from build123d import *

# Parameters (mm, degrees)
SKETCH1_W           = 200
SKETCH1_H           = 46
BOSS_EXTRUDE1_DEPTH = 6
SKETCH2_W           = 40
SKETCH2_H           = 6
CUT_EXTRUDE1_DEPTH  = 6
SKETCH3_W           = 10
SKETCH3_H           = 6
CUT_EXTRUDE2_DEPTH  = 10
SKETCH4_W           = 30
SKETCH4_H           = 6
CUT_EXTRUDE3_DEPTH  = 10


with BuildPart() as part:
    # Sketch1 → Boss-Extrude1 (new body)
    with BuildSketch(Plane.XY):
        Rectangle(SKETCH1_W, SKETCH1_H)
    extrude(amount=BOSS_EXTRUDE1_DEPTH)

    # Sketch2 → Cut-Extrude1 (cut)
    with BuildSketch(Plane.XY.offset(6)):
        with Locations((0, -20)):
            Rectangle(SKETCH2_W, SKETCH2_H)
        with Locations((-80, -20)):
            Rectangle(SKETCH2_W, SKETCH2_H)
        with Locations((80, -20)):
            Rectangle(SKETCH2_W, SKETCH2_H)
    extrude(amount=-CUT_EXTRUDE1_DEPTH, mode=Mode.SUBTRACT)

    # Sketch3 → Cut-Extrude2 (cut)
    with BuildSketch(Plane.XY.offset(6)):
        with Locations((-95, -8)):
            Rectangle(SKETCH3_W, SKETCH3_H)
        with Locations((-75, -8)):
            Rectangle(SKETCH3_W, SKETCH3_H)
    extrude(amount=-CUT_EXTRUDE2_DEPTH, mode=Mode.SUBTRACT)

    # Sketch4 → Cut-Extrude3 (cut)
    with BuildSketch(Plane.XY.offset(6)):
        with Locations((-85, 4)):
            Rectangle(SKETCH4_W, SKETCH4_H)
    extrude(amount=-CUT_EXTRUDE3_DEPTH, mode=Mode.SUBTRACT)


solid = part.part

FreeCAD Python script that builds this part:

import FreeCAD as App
import Part
import Sketcher
Q = App.Units.Quantity


def add_polygon(sketch, points):
    """Adds a closed chain of lines whose ends are joined by coincident constraints."""
    first, n = sketch.GeometryCount, len(points)
    for a, b in zip(points, points[1:] + points[:1]):
        sketch.addGeometry(Part.LineSegment(App.Vector(*a, 0), App.Vector(*b, 0)), False)
    for i in range(n):
        sketch.addConstraint(Sketcher.Constraint("Coincident", first + i, 2, first + (i + 1) % n, 1))

doc = App.newDocument("Part")
body = doc.addObject("PartDesign::Body", "Body")

# Sketch on XY plane
sketch1 = doc.addObject("Sketcher::SketchObject", "Sketch")
body.addObject(sketch1)
sketch1.AttachmentSupport = (doc.XY_Plane, [""])
sketch1.MapMode = "FlatFace"
add_polygon(sketch1, [(-100, 23), (-100, -23), (100, -23), (100, 23)])  # lines 0-3
sketch1.addConstraint([
    Sketcher.Constraint("Vertical", 0),
    Sketcher.Constraint("Horizontal", 1),
    Sketcher.Constraint("Vertical", 2),
    Sketcher.Constraint("Horizontal", 3),
    Sketcher.Constraint("Symmetric", 0, 2, 2, 2, -1, 1),
    Sketcher.Constraint("DistanceX", 1, 1, 1, 2, Q("200 mm")),
    Sketcher.Constraint("DistanceY", 0, 2, 0, 1, Q("46 mm")),
])
pad1 = doc.addObject("PartDesign::Pad", "Pad")
body.addObject(pad1)
pad1.Profile = sketch1
pad1.Length = 6

# Sketch on XY plane
sketch2 = doc.addObject("Sketcher::SketchObject", "Sketch001")
body.addObject(sketch2)
sketch2.AttachmentSupport = (doc.XY_Plane, [""])
sketch2.MapMode = "FlatFace"
sketch2.AttachmentOffset = App.Placement(App.Vector(0, 0, 6), App.Rotation())
add_polygon(sketch2, [(-20, -17), (-20, -23), (20, -23), (20, -17)])  # lines 0-3
add_polygon(sketch2, [(-100, -17), (-100, -23), (-60, -23), (-60, -17)])  # lines 4-7
add_polygon(sketch2, [(60, -17), (60, -23), (100, -23), (100, -17)])  # lines 8-11
sketch2.addConstraint([
    Sketcher.Constraint("Vertical", 0),
    Sketcher.Constraint("Horizontal", 1),
    Sketcher.Constraint("Vertical", 2),
    Sketcher.Constraint("Horizontal", 3),
    Sketcher.Constraint("Vertical", 4),
    Sketcher.Constraint("Horizontal", 5),
    Sketcher.Constraint("Vertical", 6),
    Sketcher.Constraint("Horizontal", 7),
    Sketcher.Constraint("Vertical", 8),
    Sketcher.Constraint("Horizontal", 9),
    Sketcher.Constraint("Vertical", 10),
    Sketcher.Constraint("Horizontal", 11),
    Sketcher.Constraint("Symmetric", 5, 2, 8, 2, -2),
    Sketcher.Constraint("Symmetric", 7, 2, 10, 2, -2),
    Sketcher.Constraint("Horizontal", 1, 2, 4, 2),
    Sketcher.Constraint("Horizontal", 3, 2, 6, 2),
    Sketcher.Constraint("Equal", 3, 5),
    Sketcher.Constraint("DistanceX", 1, 1, 1, 2, Q("40 mm")),
    Sketcher.Constraint("DistanceY", 0, 2, 0, 1, Q("6 mm")),
    Sketcher.Constraint("DistanceX", 0, 2, -1, 1, Q("20 mm")),
    Sketcher.Constraint("DistanceY", 0, 2, -1, 1, Q("23 mm")),
    Sketcher.Constraint("DistanceX", 4, 2, -1, 1, Q("100 mm")),
])
pocket1 = doc.addObject("PartDesign::Pocket", "Pocket")
body.addObject(pocket1)
pocket1.Profile = sketch2
pocket1.Length = 6

# Sketch on XY plane
sketch3 = doc.addObject("Sketcher::SketchObject", "Sketch002")
body.addObject(sketch3)
sketch3.AttachmentSupport = (doc.XY_Plane, [""])
sketch3.MapMode = "FlatFace"
sketch3.AttachmentOffset = App.Placement(App.Vector(0, 0, 6), App.Rotation())
add_polygon(sketch3, [(-100, -5), (-100, -11), (-90, -11), (-90, -5)])  # lines 0-3
add_polygon(sketch3, [(-80, -5), (-80, -11), (-70, -11), (-70, -5)])  # lines 4-7
sketch3.addConstraint([
    Sketcher.Constraint("Vertical", 0),
    Sketcher.Constraint("Horizontal", 1),
    Sketcher.Constraint("Vertical", 2),
    Sketcher.Constraint("Horizontal", 3),
    Sketcher.Constraint("Vertical", 4),
    Sketcher.Constraint("Horizontal", 5),
    Sketcher.Constraint("Vertical", 6),
    Sketcher.Constraint("Horizontal", 7),
    Sketcher.Constraint("Horizontal", 1, 2, 4, 2),
    Sketcher.Constraint("Horizontal", 3, 2, 6, 2),
    Sketcher.Constraint("Equal", 3, 5),
    Sketcher.Constraint("DistanceX", 1, 1, 1, 2, Q("10 mm")),
    Sketcher.Constraint("DistanceY", 0, 2, 0, 1, Q("6 mm")),
    Sketcher.Constraint("DistanceX", 0, 2, -1, 1, Q("100 mm")),
    Sketcher.Constraint("DistanceY", 0, 2, -1, 1, Q("11 mm")),
    Sketcher.Constraint("DistanceX", 4, 2, -1, 1, Q("80 mm")),
])
pocket2 = doc.addObject("PartDesign::Pocket", "Pocket001")
body.addObject(pocket2)
pocket2.Profile = sketch3
pocket2.Length = 10

# Sketch on XY plane
sketch4 = doc.addObject("Sketcher::SketchObject", "Sketch003")
body.addObject(sketch4)
sketch4.AttachmentSupport = (doc.XY_Plane, [""])
sketch4.MapMode = "FlatFace"
sketch4.AttachmentOffset = App.Placement(App.Vector(0, 0, 6), App.Rotation())
add_polygon(sketch4, [(-100, 7), (-100, 1), (-70, 1), (-70, 7)])  # lines 0-3
sketch4.addConstraint([
    Sketcher.Constraint("Vertical", 0),
    Sketcher.Constraint("Horizontal", 1),
    Sketcher.Constraint("Vertical", 2),
    Sketcher.Constraint("Horizontal", 3),
    Sketcher.Constraint("DistanceX", 1, 1, 1, 2, Q("30 mm")),
    Sketcher.Constraint("DistanceY", 0, 2, 0, 1, Q("6 mm")),
    Sketcher.Constraint("DistanceX", 0, 2, -1, 1, Q("100 mm")),
    Sketcher.Constraint("DistanceY", -1, 1, 0, 2, Q("1 mm")),
])
pocket3 = doc.addObject("PartDesign::Pocket", "Pocket002")
body.addObject(pocket3)
pocket3.Profile = sketch4
pocket3.Length = 10

doc.recompute()
